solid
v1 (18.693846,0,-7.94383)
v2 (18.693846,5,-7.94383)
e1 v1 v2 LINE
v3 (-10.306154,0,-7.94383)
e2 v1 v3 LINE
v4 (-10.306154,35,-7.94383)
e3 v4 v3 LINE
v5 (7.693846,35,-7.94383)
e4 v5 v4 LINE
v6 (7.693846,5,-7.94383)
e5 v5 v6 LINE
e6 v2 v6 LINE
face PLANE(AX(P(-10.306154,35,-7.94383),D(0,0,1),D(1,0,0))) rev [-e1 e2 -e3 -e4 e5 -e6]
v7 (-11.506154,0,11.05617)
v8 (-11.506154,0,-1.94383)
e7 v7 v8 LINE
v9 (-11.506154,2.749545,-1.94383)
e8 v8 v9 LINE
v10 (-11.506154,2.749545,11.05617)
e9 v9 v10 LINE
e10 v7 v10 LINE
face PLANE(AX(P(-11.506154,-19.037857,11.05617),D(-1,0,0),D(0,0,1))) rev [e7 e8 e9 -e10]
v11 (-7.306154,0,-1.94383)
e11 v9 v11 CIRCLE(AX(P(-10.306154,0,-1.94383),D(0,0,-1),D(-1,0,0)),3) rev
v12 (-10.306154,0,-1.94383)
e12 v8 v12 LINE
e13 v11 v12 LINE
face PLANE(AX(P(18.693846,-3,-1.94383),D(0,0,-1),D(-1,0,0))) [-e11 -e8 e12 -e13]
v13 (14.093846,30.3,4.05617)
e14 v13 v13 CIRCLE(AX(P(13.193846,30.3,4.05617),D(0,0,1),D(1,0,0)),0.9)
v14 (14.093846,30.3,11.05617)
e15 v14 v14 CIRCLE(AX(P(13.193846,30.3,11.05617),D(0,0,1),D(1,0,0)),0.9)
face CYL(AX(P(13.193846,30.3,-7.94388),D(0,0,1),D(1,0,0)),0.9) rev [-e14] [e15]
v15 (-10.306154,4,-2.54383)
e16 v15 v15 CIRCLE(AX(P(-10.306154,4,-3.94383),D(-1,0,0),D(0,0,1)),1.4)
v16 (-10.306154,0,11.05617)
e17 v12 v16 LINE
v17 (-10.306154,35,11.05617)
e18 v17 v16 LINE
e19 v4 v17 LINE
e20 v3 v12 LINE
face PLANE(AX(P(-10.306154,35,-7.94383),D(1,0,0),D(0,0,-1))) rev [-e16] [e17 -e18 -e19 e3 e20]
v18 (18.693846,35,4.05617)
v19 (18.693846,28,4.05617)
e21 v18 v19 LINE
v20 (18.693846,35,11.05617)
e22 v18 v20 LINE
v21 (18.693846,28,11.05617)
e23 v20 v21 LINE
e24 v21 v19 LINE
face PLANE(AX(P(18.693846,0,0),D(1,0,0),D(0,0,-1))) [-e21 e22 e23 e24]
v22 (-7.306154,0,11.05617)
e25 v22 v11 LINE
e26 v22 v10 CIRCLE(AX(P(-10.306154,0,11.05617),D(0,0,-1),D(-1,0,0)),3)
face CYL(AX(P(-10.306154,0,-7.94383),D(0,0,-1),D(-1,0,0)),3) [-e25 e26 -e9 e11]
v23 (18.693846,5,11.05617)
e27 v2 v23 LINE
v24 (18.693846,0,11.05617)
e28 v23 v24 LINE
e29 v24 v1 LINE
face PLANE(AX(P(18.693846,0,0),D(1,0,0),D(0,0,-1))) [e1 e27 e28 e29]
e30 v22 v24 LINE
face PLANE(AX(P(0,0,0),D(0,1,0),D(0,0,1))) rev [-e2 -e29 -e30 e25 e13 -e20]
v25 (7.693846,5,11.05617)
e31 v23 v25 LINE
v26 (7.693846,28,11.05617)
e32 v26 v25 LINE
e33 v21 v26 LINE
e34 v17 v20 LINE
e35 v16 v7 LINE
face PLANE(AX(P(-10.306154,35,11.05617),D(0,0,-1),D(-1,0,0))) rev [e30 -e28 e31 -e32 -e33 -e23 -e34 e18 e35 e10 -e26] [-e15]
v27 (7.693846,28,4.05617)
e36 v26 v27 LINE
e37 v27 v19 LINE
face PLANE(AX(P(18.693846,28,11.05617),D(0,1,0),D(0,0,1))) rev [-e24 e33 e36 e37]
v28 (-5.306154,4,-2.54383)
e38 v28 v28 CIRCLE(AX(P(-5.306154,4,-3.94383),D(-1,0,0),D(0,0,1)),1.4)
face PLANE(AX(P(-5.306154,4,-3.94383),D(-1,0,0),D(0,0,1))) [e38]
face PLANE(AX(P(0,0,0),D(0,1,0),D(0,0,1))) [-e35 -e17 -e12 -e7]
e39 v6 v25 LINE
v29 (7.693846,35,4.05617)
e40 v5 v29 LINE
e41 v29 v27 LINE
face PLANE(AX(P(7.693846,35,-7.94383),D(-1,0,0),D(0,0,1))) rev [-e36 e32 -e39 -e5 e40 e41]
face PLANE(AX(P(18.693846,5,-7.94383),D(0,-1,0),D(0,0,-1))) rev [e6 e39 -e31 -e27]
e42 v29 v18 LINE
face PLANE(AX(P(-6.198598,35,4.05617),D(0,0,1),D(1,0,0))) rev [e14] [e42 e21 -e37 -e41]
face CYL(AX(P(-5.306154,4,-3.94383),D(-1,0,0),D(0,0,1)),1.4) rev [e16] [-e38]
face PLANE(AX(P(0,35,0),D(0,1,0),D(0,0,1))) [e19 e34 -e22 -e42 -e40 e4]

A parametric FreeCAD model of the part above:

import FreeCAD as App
import Part
import Sketcher

V = App.Vector
Q = App.Units.Quantity


def add_polygon(sketch, points):
    """Adds a closed chain of lines whose ends are joined by coincident constraints."""
    first, n = sketch.GeometryCount, len(points)
    for a, b in zip(points, points[1:] + points[:1]):
        sketch.addGeometry(Part.LineSegment(App.Vector(*a, 0), App.Vector(*b, 0)), False)
    for i in range(n):
        sketch.addConstraint(Sketcher.Constraint("Coincident", first + i, 2, first + (i + 1) % n, 1))

doc = App.newDocument("Part")
params = doc.addObject("Spreadsheet::Sheet", "Params")
for row, (alias, value) in enumerate([
    ("sketch1_width", "18 mm"),
    ("sketch1_height", "19 mm"),
    ("pad1_length", "35 mm"),
    ("sketch2_width", "5 mm"),
    ("sketch2_width2", "7 mm"),
    ("sketch2_height", "19 mm"),
    ("pad2_length", "11 mm"),
    ("sketch3_width", "7 mm"),
    ("sketch3_height", "12 mm"),
    ("pocket1_length", "11 mm"),
    ("sketch4_width", "3 mm"),
    ("sketch4_height", "19 mm"),
    ("revolution_angle", "360 deg"),
    ("sketch5_width", "39 mm"),
    ("sketch5_height", "6 mm"),
    ("sketch6_width", "35 mm"),
    ("sketch6_height", "6 mm"),
    ("sketch7_height", "19 mm"),
    ("sketch7_width", "1.2 mm"),
    ("pocket4_length", "35 mm"),
    ("sketch8_diameter", "2.8 mm"),
    ("pocket5_length", "5 mm"),
    ("sketch9_diameter", "1.8 mm"),
], start=1):
    params.set(f"A{row}", alias)
    params.set(f"B{row}", "=" + value)
    params.setAlias(f"B{row}", alias)

body = doc.addObject("PartDesign::Body", "Body")

# Sketch on XZ plane
sketch1 = body.newObject("Sketcher::SketchObject", "Sketch")
sketch1.AttachmentSupport = (doc.getObject("XZ_Plane"), [""])
sketch1.MapMode = "FlatFace"
add_polygon(sketch1, [(-10, -8), (-10, 11), (8, 11), (8, -8)])  # lines 0-3
sketch1.addConstraint([
    Sketcher.Constraint("Vertical", 0),
    Sketcher.Constraint("Horizontal", 1),
    Sketcher.Constraint("Vertical", 2),
    Sketcher.Constraint("Horizontal", 3),
    Sketcher.Constraint("DistanceX", 1, 1, 1, 2, Q("18 mm")),
    Sketcher.Constraint("DistanceY", 0, 1, 0, 2, Q("19 mm")),
    Sketcher.Constraint("DistanceY", -1, 1, 0, 2, Q("11.05617 mm")),
    Sketcher.Constraint("DistanceX", 0, 2, -1, 1, Q("10.306154 mm")),
])
sketch1.setExpression("Constraints[8]", "Params.sketch1_width")
sketch1.setExpression("Constraints[9]", "Params.sketch1_height")
pad1 = body.newObject("PartDesign::Pad", "Pad")
pad1.Profile = sketch1
pad1.setExpression("Length", "Params.pad1_length")
pad1.Reversed = True

# Sketch on YZ plane
sketch2 = body.newObject("Sketcher::SketchObject", "Sketch001")
sketch2.AttachmentSupport = (doc.getObject("YZ_Plane"), [""])
sketch2.MapMode = "FlatFace"
sketch2.AttachmentOffset = App.Placement(V(0, 0, 7.693846), App.Rotation())
add_polygon(sketch2, [(5, 11), (0, 11), (0, -8), (5, -8)])  # lines 0-3
add_polygon(sketch2, [(35, 11), (28, 11), (28, -8), (35, -8)])  # lines 4-7
sketch2.addConstraint([
    Sketcher.Constraint("Horizontal", 0),
    Sketcher.Constraint("Vertical", 1),
    Sketcher.Constraint("Horizontal", 2),
    Sketcher.Constraint("Vertical", 3),
    Sketcher.Constraint("Horizontal", 4),
    Sketcher.Constraint("Vertical", 5),
    Sketcher.Constraint("Horizontal", 6),
    Sketcher.Constraint("Vertical", 7),
    Sketcher.Constraint("PointOnObject", 0, 2, -2),
    Sketcher.Constraint("Horizontal", 3, 2, 4, 2),
    Sketcher.Constraint("Horizontal", 2, 2, 5, 2),
    Sketcher.Constraint("DistanceX", 0, 2, 0, 1, Q("5 mm")),
    Sketcher.Constraint("DistanceX", 4, 2, 4, 1, Q("7 mm")),
    Sketcher.Constraint("DistanceY", 1, 2, 1, 1, Q("19 mm")),
    Sketcher.Constraint("DistanceX", -1, 1, 4, 2, Q("28 mm")),
    Sketcher.Constraint("DistanceY", -1, 1, 0, 2, Q("11.05617 mm")),
])
sketch2.setExpression("Constraints[19]", "Params.sketch2_width")
sketch2.setExpression("Constraints[20]", "Params.sketch2_width2")
sketch2.setExpression("Constraints[21]", "Params.sketch2_height")
pad2 = body.newObject("PartDesign::Pad", "Pad001")
pad2.Profile = sketch2
pad2.setExpression("Length", "Params.pad2_length")

# Sketch on YZ plane
sketch3 = body.newObject("Sketcher::SketchObject", "Sketch002")
sketch3.AttachmentSupport = (doc.getObject("YZ_Plane"), [""])
sketch3.MapMode = "FlatFace"
sketch3.AttachmentOffset = App.Placement(V(0, 0, 18.693846), App.Rotation())
add_polygon(sketch3, [(35, 4), (28, 4), (28, -8), (35, -8)])  # lines 0-3
sketch3.addConstraint([
    Sketcher.Constraint("Horizontal", 0),
    Sketcher.Constraint("Vertical", 1),
    Sketcher.Constraint("Horizontal", 2),
    Sketcher.Constraint("Vertical", 3),
    Sketcher.Constraint("DistanceX", 0, 2, 0, 1, Q("7 mm")),
    Sketcher.Constraint("DistanceY", 1, 2, 1, 1, Q("12 mm")),
    Sketcher.Constraint("DistanceX", -1, 1, 0, 2, Q("28 mm")),
    Sketcher.Constraint("DistanceY", -1, 1, 0, 2, Q("4.05617 mm")),
])
sketch3.setExpression("Constraints[8]", "Params.sketch3_width")
sketch3.setExpression("Constraints[9]", "Params.sketch3_height")
pocket1 = body.newObject("PartDesign::Pocket", "Pocket")
pocket1.Profile = sketch3
pocket1.setExpression("Length", "Params.pocket1_length")

# Sketch on XZ plane
sketch4 = body.newObject("Sketcher::SketchObject", "Sketch003")
sketch4.AttachmentSupport = (doc.getObject("XZ_Plane"), [""])
sketch4.MapMode = "FlatFace"
add_polygon(sketch4, [(-10.3, 11.1), (-10.3, -7.9), (-7.3, -7.9), (-7.3, 11.1)])  # lines 0-3
sketch4.addGeometry(Part.LineSegment(V(-10.3, -7.9, 0), V(-10.3, 11.1, 0)), True)  # axis
sketch4.addConstraint([
    Sketcher.Constraint("Vertical", 0),
    Sketcher.Constraint("Horizontal", 1),
    Sketcher.Constraint("Vertical", 2),
    Sketcher.Constraint("Horizontal", 3),
    Sketcher.Constraint("Vertical", 4),
    Sketcher.Constraint("Coincident", 4, 1, 0, 2),
    Sketcher.Constraint("Horizontal", 2, 2, 4, 2),
    Sketcher.Constraint("DistanceX", 1, 1, 1, 2, Q("3 mm")),
    Sketcher.Constraint("DistanceY", 0, 2, 0, 1, Q("19 mm")),
    Sketcher.Constraint("DistanceY", 0, 2, -1, 1, Q("7.94383 mm")),
    Sketcher.Constraint("DistanceX", 0, 2, -1, 1, Q("10.306154 mm")),
])
sketch4.setExpression("Constraints[11]", "Params.sketch4_width")
sketch4.setExpression("Constraints[12]", "Params.sketch4_height")
revolution = body.newObject("PartDesign::Revolution", "Revolution")
revolution.Profile = sketch4
revolution.ReferenceAxis = (sketch4, ["Axis0"])
revolution.setExpression("Angle", "Params.revolution_angle")

# Sketch on XZ plane
sketch5 = body.newObject("Sketcher::SketchObject", "Sketch004")
sketch5.AttachmentSupport = (doc.getObject("XZ_Plane"), [""])
sketch5.MapMode = "FlatFace"
add_polygon(sketch5, [(-20, -2), (-20, -8), (19, -8), (19, -2)])  # lines 0-3
sketch5.addConstraint([
    Sketcher.Constraint("Vertical", 0),
    Sketcher.Constraint("Horizontal", 1),
    Sketcher.Constraint("Vertical", 2),
    Sketcher.Constraint("Horizontal", 3),
    Sketcher.Constraint("DistanceX", 1, 1, 1, 2, Q("39 mm")),
    Sketcher.Constraint("DistanceY", 0, 2, 0, 1, Q("6 mm")),
    Sketcher.Constraint("DistanceY", 0, 2, -1, 1, Q("7.94383 mm")),
    Sketcher.Constraint("DistanceX", 0, 2, -1, 1, Q("20.306154 mm")),
])
sketch5.setExpression("Constraints[8]", "Params.sketch5_width")
sketch5.setExpression("Constraints[9]", "Params.sketch5_height")
pocket2 = body.newObject("PartDesign::Pocket", "Pocket001")
pocket2.Profile = sketch5
pocket2.Type = "ThroughAll"
pocket2.Reversed = True

# Sketch on YZ plane
sketch6 = body.newObject("Sketcher::SketchObject", "Sketch005")
sketch6.AttachmentSupport = (doc.getObject("YZ_Plane"), [""])
sketch6.MapMode = "FlatFace"
sketch6.AttachmentOffset = App.Placement(V(0, 0, -10.306154), App.Rotation())
add_polygon(sketch6, [(35, -8), (0, -8), (0, -2), (35, -2)])  # lines 0-3
sketch6.addConstraint([
    Sketcher.Constraint("Horizontal", 0),
    Sketcher.Constraint("Vertical", 1),
    Sketcher.Constraint("Horizontal", 2),
    Sketcher.Constraint("Vertical", 3),
    Sketcher.Constraint("PointOnObject", 0, 2, -2),
    Sketcher.Constraint("DistanceX", 0, 2, 0, 1, Q("35 mm")),
    Sketcher.Constraint("DistanceY", 1, 1, 1, 2, Q("6 mm")),
    Sketcher.Constraint("DistanceY", 0, 2, -1, 1, Q("7.94383 mm")),
])
sketch6.setExpression("Constraints[9]", "Params.sketch6_width")
sketch6.setExpression("Constraints[10]", "Params.sketch6_height")
pocket3 = body.newObject("PartDesign::Pocket", "Pocket002")
pocket3.Profile = sketch6
pocket3.Type = "ThroughAll"

# Sketch on XZ plane
sketch7 = body.newObject("Sketcher::SketchObject", "Sketch006")
sketch7.AttachmentSupport = (doc.getObject("XZ_Plane"), [""])
sketch7.MapMode = "FlatFace"
sketch7.AttachmentOffset = App.Placement(V(0, 0, -35), App.Rotation())
add_polygon(sketch7, [(-11.5, -7.9), (-11.5, 11.1), (-10.3, 11.1), (-10.3, -7.9)])  # lines 0-3
sketch7.addConstraint([
    Sketcher.Constraint("Vertical", 0),
    Sketcher.Constraint("Horizontal", 1),
    Sketcher.Constraint("Vertical", 2),
    Sketcher.Constraint("Horizontal", 3),
    Sketcher.Constraint("DistanceY", 0, 1, 0, 2, Q("19 mm")),
    Sketcher.Constraint("DistanceX", 1, 1, 1, 2, Q("1.2 mm")),
    Sketcher.Constraint("DistanceY", -1, 1, 0, 2, Q("11.05617 mm")),
    Sketcher.Constraint("DistanceX", 0, 2, -1, 1, Q("11.506154 mm")),
])
sketch7.setExpression("Constraints[8]", "Params.sketch7_height")
sketch7.setExpression("Constraints[9]", "Params.sketch7_width")
pocket4 = body.newObject("PartDesign::Pocket", "Pocket003")
pocket4.Profile = sketch7
pocket4.setExpression("Length", "Params.pocket4_length")
pocket4.Reversed = True

# Sketch on YZ plane
sketch8 = body.newObject("Sketcher::SketchObject", "Sketch007")
sketch8.AttachmentSupport = (doc.getObject("YZ_Plane"), [""])
sketch8.MapMode = "FlatFace"
sketch8.AttachmentOffset = App.Placement(V(0, 0, -10.306154), App.Rotation())
sketch8.addGeometry(Part.Circle(V(4, -3.9, 0), V(0, 0, 1), 1.4), False)
sketch8.addConstraint([
    Sketcher.Constraint("Diameter", 0, Q("2.8 mm")),
    Sketcher.Constraint("DistanceX", -1, 1, 0, 3, Q("4 mm")),
    Sketcher.Constraint("DistanceY", 0, 3, -1, 1, Q("3.94383 mm")),
])
sketch8.setExpression("Constraints[0]", "Params.sketch8_diameter")
pocket5 = body.newObject("PartDesign::Pocket", "Pocket004")
pocket5.Profile = sketch8
pocket5.setExpression("Length", "Params.pocket5_length")
pocket5.Reversed = True

# Sketch on XY plane
sketch9 = body.newObject("Sketcher::SketchObject", "Sketch008")
sketch9.AttachmentSupport = (doc.getObject("XY_Plane"), [""])
sketch9.MapMode = "FlatFace"
sketch9.AttachmentOffset = App.Placement(V(0, 0, 11.05617), App.Rotation())
sketch9.addGeometry(Part.Circle(V(13.2, 30.3, 0), V(0, 0, 1), 0.9), False)
sketch9.addConstraint([
    Sketcher.Constraint("Diameter", 0, Q("1.8 mm")),
    Sketcher.Constraint("DistanceY", -1, 1, 0, 3, Q("30.3 mm")),
    Sketcher.Constraint("DistanceX", -1, 1, 0, 3, Q("13.193846 mm")),
])
sketch9.setExpression("Constraints[0]", "Params.sketch9_diameter")
pocket6 = body.newObject("PartDesign::Pocket", "Pocket005")
pocket6.Profile = sketch9
pocket6.Type = "ThroughAll"

doc.recompute()
